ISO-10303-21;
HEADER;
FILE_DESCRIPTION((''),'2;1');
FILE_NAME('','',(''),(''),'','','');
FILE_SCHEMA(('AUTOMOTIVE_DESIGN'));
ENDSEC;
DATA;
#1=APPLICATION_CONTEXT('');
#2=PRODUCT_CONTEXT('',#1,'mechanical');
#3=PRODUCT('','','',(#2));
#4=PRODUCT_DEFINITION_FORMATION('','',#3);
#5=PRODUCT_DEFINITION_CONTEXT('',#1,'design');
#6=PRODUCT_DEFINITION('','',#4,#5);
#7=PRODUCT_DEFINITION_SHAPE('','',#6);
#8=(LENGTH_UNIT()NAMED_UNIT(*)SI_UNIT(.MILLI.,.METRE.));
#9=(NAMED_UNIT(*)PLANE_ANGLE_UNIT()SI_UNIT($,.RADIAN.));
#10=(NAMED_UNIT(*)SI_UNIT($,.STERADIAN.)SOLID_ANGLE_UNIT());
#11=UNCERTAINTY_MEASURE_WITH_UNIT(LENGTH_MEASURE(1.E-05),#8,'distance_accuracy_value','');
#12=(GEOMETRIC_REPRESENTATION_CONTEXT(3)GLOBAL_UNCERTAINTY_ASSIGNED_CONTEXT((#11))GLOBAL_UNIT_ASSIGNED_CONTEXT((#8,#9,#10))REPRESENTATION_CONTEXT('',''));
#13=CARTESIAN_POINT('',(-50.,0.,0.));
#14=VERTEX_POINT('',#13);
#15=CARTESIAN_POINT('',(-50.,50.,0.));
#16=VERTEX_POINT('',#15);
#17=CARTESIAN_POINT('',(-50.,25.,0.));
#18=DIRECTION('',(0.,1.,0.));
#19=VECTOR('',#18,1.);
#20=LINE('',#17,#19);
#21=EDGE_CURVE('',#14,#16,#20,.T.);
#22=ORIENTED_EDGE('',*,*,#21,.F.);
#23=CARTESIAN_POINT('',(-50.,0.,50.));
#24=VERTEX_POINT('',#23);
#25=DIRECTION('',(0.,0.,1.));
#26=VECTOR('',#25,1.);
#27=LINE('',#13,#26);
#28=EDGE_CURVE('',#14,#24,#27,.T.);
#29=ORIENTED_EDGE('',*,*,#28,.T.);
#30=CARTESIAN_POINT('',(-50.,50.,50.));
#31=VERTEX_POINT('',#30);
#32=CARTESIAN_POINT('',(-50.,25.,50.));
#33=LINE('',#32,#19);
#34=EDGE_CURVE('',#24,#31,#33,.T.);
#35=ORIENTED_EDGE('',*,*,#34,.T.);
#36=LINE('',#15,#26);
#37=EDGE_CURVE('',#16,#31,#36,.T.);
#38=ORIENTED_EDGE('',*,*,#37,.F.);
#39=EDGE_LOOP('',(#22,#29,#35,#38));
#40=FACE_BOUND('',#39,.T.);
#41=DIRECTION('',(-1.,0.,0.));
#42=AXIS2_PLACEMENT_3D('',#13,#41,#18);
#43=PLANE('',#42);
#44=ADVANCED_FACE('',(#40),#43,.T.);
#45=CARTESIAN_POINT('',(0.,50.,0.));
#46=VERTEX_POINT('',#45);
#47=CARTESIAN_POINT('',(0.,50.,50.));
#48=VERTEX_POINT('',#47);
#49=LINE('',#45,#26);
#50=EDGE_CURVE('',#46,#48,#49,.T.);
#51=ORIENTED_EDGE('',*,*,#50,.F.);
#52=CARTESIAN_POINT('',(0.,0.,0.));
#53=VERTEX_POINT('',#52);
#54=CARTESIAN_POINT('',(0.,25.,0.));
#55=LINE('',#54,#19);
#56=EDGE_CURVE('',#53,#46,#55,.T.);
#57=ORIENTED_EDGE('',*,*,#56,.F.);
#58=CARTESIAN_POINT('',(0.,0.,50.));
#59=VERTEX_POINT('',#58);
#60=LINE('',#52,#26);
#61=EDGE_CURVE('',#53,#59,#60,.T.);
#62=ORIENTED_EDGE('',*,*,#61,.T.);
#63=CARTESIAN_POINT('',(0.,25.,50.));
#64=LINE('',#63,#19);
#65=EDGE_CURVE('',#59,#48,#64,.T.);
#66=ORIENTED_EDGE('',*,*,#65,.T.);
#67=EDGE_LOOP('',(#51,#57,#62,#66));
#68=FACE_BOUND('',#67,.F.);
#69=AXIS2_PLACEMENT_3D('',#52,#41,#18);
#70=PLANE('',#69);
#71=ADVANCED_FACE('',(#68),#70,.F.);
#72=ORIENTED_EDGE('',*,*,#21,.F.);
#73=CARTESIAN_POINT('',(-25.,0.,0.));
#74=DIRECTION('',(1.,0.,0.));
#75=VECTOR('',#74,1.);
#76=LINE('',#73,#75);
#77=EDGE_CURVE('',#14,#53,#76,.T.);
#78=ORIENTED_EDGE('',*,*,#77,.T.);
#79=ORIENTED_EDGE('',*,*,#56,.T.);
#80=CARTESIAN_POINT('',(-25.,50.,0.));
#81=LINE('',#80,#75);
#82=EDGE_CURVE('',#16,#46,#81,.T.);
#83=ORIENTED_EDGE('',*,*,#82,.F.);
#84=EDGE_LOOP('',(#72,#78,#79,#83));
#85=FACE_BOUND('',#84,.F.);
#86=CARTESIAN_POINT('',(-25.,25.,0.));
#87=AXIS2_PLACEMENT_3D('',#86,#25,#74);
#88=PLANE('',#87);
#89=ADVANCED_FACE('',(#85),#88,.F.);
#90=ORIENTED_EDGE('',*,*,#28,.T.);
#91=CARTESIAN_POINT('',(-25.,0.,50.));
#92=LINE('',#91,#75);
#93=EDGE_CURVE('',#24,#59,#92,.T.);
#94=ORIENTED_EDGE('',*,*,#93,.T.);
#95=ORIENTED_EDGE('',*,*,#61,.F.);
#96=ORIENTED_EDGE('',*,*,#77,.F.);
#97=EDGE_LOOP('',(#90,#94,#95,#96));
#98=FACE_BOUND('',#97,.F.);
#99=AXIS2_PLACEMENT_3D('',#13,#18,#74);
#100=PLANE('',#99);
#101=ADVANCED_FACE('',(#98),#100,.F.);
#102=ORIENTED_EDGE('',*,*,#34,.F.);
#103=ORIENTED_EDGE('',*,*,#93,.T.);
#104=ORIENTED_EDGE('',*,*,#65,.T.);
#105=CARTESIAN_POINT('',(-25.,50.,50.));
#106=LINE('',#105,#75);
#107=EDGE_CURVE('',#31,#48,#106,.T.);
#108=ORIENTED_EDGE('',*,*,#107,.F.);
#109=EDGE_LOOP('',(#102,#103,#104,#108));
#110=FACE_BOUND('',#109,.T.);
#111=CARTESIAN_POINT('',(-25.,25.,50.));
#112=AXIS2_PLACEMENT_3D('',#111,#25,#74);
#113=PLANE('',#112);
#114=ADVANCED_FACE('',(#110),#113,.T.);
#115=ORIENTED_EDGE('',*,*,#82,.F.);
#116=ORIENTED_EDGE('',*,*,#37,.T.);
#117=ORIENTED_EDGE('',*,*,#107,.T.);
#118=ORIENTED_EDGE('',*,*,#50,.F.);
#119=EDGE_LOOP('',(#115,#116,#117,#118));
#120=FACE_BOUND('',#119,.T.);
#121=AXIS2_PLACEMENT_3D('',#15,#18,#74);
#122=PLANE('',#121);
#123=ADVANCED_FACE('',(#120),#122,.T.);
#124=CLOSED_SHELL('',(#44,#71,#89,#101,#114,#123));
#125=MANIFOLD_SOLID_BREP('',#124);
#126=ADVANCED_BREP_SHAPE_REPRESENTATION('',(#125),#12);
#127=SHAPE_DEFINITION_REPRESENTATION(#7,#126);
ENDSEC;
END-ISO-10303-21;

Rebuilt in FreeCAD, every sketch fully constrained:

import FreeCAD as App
import Part
import Sketcher

V = App.Vector

doc = App.newDocument("Part")
body = doc.addObject("PartDesign::Body", "Body")

# Sketch on XY plane
sketch1 = body.newObject("Sketcher::SketchObject", "Sketch")
sketch1.AttachmentSupport = (doc.getObject("XY_Plane"), [""])
sketch1.MapMode = "FlatFace"
sketch1.addGeometry([
    Part.LineSegment(V(-50, 50, 0), V(-50, 0, 0)),
    Part.LineSegment(V(-50, 0, 0), V(0, 0, 0)),
    Part.LineSegment(V(0, 0, 0), V(0, 50, 0)),
    Part.LineSegment(V(0, 50, 0), V(-50, 50, 0)),
], False)
sketch1.addConstraint([
    Sketcher.Constraint("Coincident", 0, 2, 1, 1),
    Sketcher.Constraint("Coincident", 1, 2, 2, 1),
    Sketcher.Constraint("Coincident", 2, 2, 3, 1),
    Sketcher.Constraint("Coincident", 3, 2, 0, 1),
    Sketcher.Constraint("Vertical", 0),
    Sketcher.Constraint("Horizontal", 1),
    Sketcher.Constraint("Vertical", 2),
    Sketcher.Constraint("Horizontal", 3),
    Sketcher.Constraint("Coincident", 1, 2, -1, 1),
    Sketcher.Constraint("Equal", 3, 0),
    Sketcher.Constraint("DistanceX", 1, 1, 1, 2, 50.0),
])
pad1 = body.newObject("PartDesign::Pad", "Pad")
pad1.Profile = sketch1
pad1.Length = 50

doc.recompute()
